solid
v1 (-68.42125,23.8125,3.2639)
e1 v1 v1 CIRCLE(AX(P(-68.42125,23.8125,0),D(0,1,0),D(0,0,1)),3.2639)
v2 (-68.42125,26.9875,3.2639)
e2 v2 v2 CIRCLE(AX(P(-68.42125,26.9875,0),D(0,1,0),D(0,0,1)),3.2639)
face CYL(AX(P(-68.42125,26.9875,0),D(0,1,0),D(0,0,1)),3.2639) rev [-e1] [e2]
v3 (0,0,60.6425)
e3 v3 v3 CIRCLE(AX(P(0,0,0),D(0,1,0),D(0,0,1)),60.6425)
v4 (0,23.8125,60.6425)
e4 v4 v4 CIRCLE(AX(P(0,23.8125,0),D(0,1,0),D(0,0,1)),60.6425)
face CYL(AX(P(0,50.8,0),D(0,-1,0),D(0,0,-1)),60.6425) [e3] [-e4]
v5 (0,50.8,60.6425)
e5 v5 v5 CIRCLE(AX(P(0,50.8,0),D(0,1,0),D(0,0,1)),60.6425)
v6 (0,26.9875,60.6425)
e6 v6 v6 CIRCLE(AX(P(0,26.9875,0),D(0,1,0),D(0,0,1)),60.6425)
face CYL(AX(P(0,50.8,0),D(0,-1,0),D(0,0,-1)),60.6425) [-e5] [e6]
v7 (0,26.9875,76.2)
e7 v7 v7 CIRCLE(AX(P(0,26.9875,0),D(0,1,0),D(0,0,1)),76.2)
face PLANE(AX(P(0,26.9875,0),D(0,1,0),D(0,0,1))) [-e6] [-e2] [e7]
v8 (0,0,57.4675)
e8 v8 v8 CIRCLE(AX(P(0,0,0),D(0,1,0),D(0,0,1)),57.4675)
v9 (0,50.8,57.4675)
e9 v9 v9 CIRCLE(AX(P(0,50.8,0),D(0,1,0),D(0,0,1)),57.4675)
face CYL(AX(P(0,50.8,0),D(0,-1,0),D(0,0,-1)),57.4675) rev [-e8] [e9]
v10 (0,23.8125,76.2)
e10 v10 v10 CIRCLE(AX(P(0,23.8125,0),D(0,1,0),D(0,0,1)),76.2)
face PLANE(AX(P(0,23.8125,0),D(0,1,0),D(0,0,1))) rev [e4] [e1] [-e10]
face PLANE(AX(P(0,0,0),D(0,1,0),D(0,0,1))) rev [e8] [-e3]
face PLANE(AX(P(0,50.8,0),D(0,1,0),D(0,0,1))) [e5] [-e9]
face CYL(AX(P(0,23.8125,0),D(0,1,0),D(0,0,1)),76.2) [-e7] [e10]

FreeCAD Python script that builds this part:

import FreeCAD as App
import Part
import Sketcher
Q = App.Units.Quantity

doc = App.newDocument("Part")
body = doc.addObject("PartDesign::Body", "Body")

sketch1 = body.newObject("Sketcher::SketchObject", "Sketch")
sketch1.AttachmentSupport = (doc.getObject("XZ_Plane"), [""])
sketch1.MapMode = "FlatFace"
sketch1.addGeometry([
    Part.Circle(App.Vector(0, 0, 0), App.Vector(0, 0, 1), 61),
    Part.Circle(App.Vector(0, 0, 0), App.Vector(0, 0, 1), 57),
], False)
sketch1.addConstraint([
    Sketcher.Constraint("Coincident", 0, 3, -1, 1),
    Sketcher.Constraint("Coincident", 1, 3, -1, 1),
    Sketcher.Constraint("Diameter", 0, Q("4.775 in")),
    Sketcher.Constraint("Diameter", 1, Q("4.525 in")),
])
pad1 = body.newObject("PartDesign::Pad", "Pad")
pad1.Profile = sketch1
pad1.Length = Q("2 in")
pad1.Reversed = True

sketch2 = body.newObject("Sketcher::SketchObject", "Sketch001")
sketch2.AttachmentSupport = (doc.getObject("XZ_Plane"), [""])
sketch2.MapMode = "FlatFace"
sketch2.AttachmentOffset = App.Placement(App.Vector(0, 0, -0.9375 * 25.4), App.Rotation())
sketch2.addGeometry([
    Part.Circle(App.Vector(0, 0, 0), App.Vector(0, 0, 1), 76),
    Part.Circle(App.Vector(0, 0, 0), App.Vector(0, 0, 1), 61),
], False)
sketch2.addConstraint([
    Sketcher.Constraint("Coincident", 0, 3, -1, 1),
    Sketcher.Constraint("Coincident", 1, 3, -1, 1),
    Sketcher.Constraint("Diameter", 0, Q("6 in")),
    Sketcher.Constraint("Diameter", 1, Q("4.775 in")),
])
pad2 = body.newObject("PartDesign::Pad", "Pad001")
pad2.Profile = sketch2
pad2.Length = Q("0.125 in")
pad2.Reversed = True

sketch3 = body.newObject("Sketcher::SketchObject", "Sketch002")
sketch3.AttachmentSupport = (doc.getObject("XZ_Plane"), [""])
sketch3.MapMode = "FlatFace"
sketch3.AttachmentOffset = App.Placement(App.Vector(0, 0, -1.0625 * 25.4), App.Rotation())
sketch3.addGeometry(Part.Circle(App.Vector(-68.4, 0, 0), App.Vector(0, 0, 1), 3.3), False)
sketch3.addConstraint([
    Sketcher.Constraint("PointOnObject", 0, 3, -1),
    Sketcher.Constraint("Diameter", 0, Q("0.257 in")),
    Sketcher.Constraint("DistanceX", 0, 3, -1, 1, Q("68.42125 mm")),
])
doc.recompute()
hole = body.newObject("PartDesign::Hole", "Hole")
hole.Profile = sketch3
hole.ThreadType = "None"
hole.Diameter = Q("0.257 in")
hole.DepthType = "Dimension"
hole.Depth = Q("1.51 in")
hole.DrillPoint = "Angled"
hole.DrillPointAngle = 118
hole.Reversed = True

doc.recompute()
